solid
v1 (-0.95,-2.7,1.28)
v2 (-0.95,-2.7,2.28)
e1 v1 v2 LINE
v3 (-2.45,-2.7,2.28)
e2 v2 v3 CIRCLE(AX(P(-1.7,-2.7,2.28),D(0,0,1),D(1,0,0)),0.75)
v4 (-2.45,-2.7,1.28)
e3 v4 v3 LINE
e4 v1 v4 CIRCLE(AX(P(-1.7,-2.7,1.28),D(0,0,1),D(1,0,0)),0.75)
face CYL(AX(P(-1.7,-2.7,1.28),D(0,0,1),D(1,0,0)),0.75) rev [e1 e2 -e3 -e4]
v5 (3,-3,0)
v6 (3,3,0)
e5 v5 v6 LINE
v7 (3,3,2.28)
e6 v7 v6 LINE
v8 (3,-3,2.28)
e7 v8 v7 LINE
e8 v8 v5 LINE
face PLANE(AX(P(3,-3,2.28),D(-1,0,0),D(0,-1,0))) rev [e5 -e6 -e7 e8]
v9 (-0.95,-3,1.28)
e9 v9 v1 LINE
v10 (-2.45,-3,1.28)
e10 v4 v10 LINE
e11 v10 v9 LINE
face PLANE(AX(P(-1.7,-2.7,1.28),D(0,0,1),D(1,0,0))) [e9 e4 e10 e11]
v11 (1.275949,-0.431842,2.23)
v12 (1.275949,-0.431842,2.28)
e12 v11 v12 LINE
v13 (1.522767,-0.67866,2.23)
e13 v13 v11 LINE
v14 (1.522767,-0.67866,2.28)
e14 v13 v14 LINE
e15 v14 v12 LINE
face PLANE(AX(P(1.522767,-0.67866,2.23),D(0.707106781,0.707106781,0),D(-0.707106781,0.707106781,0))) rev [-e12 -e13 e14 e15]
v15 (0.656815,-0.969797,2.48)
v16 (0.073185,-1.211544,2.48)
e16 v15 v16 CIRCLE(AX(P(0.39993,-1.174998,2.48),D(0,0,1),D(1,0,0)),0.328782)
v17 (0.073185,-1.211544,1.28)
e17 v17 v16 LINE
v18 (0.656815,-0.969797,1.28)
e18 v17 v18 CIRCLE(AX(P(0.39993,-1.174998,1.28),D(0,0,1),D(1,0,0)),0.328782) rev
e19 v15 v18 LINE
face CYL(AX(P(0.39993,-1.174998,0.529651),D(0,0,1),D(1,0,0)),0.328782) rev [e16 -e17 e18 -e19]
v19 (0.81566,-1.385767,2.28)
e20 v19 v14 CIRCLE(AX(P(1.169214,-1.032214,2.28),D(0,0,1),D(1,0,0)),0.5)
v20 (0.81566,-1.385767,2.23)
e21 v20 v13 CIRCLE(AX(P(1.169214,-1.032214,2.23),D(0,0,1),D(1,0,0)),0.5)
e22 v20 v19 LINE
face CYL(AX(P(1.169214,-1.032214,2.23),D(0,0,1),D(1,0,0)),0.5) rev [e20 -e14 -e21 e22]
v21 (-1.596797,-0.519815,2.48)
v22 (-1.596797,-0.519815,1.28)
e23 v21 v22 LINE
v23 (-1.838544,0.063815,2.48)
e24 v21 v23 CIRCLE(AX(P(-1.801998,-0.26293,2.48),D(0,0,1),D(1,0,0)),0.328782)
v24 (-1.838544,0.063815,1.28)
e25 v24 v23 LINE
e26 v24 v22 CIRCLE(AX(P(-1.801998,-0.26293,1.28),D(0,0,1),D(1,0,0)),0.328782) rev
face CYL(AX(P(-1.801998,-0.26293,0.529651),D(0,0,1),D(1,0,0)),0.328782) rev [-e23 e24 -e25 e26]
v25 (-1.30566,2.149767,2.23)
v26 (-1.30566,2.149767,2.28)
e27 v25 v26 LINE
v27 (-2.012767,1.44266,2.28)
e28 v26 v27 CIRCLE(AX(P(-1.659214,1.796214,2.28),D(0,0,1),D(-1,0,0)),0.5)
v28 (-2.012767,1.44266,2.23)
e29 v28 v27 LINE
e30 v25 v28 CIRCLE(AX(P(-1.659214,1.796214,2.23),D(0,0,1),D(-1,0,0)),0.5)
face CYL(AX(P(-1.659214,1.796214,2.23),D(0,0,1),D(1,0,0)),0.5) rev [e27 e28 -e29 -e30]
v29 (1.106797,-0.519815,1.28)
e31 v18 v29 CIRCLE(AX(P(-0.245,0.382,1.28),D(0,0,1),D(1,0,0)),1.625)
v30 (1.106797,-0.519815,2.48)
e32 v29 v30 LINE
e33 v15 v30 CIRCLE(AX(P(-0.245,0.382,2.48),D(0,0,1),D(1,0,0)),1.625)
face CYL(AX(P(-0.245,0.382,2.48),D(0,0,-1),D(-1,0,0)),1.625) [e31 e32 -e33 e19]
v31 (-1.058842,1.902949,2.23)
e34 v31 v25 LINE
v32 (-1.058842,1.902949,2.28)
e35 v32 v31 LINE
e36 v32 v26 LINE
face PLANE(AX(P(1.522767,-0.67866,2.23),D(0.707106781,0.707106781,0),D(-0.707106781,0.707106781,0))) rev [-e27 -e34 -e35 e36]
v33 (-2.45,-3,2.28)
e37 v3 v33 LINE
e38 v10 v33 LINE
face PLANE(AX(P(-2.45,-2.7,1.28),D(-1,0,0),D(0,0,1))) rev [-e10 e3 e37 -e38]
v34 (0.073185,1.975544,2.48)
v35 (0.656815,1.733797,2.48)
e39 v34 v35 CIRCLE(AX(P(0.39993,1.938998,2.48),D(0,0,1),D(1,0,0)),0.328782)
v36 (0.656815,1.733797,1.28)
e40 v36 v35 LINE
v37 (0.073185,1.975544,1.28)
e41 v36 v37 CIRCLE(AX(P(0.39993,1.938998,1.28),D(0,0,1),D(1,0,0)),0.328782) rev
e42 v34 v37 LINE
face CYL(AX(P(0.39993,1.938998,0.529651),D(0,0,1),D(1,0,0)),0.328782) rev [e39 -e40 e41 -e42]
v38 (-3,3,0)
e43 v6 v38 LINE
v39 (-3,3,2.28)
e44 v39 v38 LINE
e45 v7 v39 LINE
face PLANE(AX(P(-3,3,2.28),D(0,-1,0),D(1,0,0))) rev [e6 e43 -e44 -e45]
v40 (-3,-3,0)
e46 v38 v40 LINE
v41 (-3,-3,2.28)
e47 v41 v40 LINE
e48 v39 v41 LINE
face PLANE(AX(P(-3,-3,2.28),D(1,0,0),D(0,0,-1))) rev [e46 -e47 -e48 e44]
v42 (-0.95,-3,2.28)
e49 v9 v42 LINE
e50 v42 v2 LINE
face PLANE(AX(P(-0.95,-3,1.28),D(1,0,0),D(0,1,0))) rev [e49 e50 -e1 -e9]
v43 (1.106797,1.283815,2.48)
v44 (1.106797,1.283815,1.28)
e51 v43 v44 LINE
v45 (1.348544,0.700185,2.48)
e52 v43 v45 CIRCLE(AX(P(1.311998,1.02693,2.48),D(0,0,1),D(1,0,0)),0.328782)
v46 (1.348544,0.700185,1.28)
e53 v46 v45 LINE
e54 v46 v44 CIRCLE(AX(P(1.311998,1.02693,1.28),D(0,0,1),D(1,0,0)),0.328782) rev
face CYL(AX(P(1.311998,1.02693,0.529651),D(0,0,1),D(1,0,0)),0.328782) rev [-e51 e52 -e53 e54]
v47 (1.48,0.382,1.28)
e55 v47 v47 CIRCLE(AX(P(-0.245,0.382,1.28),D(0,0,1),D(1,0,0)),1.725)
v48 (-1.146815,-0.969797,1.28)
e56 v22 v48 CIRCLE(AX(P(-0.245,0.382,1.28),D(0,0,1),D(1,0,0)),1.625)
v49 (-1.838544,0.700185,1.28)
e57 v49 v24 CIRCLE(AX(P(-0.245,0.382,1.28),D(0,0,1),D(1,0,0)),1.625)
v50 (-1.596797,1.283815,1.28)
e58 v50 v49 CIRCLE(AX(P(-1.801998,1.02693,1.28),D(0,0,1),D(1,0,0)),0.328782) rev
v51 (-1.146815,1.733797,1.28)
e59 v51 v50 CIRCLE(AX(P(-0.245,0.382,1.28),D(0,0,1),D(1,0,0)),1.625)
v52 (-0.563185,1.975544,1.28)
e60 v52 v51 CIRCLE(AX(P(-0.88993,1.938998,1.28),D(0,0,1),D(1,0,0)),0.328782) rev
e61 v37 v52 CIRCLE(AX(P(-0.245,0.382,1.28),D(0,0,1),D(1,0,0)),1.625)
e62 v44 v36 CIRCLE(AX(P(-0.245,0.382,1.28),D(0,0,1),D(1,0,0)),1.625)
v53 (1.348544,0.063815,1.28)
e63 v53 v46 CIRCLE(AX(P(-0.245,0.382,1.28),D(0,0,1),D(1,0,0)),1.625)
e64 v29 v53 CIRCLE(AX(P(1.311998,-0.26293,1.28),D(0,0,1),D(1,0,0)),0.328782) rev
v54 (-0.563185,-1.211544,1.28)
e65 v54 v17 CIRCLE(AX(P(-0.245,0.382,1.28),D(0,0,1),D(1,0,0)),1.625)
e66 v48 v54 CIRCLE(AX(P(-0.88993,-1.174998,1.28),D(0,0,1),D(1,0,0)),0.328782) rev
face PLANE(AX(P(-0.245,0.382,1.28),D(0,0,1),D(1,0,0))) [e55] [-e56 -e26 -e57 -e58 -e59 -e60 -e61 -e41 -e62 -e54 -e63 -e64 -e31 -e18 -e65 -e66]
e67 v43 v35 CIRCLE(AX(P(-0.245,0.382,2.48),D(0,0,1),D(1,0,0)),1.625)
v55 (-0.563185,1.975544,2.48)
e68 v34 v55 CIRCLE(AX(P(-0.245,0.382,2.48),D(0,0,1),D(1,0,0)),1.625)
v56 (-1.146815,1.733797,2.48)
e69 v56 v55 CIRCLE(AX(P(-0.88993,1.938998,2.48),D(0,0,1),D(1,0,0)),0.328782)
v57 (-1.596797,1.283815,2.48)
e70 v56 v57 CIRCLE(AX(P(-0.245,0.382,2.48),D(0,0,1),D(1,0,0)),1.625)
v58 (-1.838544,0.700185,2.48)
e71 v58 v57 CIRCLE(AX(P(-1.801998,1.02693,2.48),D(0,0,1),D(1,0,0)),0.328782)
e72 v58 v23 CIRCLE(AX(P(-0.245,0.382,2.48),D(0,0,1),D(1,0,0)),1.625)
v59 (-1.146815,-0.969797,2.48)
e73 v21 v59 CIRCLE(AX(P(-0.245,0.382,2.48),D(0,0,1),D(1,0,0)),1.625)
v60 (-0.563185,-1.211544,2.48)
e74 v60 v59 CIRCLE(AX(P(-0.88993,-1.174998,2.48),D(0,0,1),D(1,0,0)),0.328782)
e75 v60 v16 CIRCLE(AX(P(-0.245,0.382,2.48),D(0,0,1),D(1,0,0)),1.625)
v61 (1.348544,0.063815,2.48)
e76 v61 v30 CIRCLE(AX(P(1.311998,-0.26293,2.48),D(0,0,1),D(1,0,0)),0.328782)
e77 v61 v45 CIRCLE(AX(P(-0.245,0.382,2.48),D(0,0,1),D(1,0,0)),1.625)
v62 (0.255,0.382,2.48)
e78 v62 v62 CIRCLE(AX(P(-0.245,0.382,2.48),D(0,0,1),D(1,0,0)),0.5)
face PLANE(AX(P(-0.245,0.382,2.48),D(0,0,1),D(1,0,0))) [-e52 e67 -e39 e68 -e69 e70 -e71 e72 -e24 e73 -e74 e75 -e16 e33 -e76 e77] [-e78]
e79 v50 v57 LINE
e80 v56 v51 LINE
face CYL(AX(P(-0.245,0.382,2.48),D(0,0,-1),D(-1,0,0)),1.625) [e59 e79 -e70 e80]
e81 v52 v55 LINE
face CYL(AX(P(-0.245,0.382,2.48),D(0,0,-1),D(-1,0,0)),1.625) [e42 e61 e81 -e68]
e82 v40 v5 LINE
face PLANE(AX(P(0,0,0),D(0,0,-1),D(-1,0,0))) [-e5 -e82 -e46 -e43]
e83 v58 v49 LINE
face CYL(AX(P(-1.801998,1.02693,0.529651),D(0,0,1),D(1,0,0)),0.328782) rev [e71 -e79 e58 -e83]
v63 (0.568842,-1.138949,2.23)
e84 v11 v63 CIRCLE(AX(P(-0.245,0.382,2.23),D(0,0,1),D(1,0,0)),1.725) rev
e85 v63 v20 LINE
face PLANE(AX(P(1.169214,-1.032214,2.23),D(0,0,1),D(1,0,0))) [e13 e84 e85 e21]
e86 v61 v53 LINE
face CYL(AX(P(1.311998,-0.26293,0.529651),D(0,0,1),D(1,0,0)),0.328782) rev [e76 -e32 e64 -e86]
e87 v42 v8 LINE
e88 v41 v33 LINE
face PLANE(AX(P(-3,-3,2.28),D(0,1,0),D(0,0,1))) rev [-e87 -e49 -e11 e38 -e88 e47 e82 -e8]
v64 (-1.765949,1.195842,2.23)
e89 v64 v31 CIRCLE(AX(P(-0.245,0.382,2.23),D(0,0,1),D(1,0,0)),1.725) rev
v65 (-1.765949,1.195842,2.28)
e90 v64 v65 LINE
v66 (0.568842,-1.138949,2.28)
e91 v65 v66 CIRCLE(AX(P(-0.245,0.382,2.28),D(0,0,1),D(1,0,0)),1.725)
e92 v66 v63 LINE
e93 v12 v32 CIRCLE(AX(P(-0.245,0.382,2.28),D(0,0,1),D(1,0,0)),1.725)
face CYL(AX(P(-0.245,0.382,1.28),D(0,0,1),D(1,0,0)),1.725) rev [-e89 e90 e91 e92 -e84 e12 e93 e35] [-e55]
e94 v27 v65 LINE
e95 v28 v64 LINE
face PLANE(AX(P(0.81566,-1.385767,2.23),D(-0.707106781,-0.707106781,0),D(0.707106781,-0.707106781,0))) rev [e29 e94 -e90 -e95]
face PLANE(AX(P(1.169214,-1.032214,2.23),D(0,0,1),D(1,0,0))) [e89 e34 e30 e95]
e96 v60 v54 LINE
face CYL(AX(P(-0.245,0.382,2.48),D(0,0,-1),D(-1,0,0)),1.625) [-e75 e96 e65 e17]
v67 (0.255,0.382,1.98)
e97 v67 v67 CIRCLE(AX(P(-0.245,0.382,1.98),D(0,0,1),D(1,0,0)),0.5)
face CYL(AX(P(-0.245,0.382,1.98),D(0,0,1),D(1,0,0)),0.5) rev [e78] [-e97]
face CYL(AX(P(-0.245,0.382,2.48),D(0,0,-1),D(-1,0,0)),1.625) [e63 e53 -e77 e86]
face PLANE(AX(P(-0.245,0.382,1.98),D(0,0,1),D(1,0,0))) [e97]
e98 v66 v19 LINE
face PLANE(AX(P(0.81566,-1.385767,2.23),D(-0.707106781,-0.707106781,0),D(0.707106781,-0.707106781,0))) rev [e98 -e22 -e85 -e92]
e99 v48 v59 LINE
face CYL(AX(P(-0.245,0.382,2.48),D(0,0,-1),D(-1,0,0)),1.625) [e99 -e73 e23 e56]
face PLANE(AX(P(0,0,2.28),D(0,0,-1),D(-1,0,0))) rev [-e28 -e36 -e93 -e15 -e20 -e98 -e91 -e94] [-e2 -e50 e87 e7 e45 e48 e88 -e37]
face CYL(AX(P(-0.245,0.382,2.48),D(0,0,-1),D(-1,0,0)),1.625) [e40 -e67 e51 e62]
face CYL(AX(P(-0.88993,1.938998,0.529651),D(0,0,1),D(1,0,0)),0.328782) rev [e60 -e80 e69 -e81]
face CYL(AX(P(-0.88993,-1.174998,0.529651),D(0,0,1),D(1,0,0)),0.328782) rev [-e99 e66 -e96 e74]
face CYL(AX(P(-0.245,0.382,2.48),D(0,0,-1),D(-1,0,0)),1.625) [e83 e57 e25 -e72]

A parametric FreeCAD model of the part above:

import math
import FreeCAD as App
import Part
import Sketcher

V = App.Vector
Q = App.Units.Quantity

doc = App.newDocument("Part")
body = doc.addObject("PartDesign::Body", "Body")

sketch1 = doc.addObject("Sketcher::SketchObject", "Sketch")
body.addObject(sketch1)
sketch1.AttachmentSupport = (doc.XY_Plane, [""])
sketch1.MapMode = "FlatFace"
sketch1.addGeometry(Part.LineSegment(V(-3, 3, 0), V(-3, -3, 0)), False)
sketch1.addGeometry(Part.LineSegment(V(-3, -3, 0), V(3, -3, 0)), False)
sketch1.addGeometry(Part.LineSegment(V(3, -3, 0), V(3, 3, 0)), False)
sketch1.addGeometry(Part.LineSegment(V(3, 3, 0), V(-3, 3, 0)), False)
sketch1.addConstraint(Sketcher.Constraint("Coincident", 0, 2, 1, 1))
sketch1.addConstraint(Sketcher.Constraint("Coincident", 1, 2, 2, 1))
sketch1.addConstraint(Sketcher.Constraint("Coincident", 2, 2, 3, 1))
sketch1.addConstraint(Sketcher.Constraint("Coincident", 3, 2, 0, 1))
sketch1.addConstraint(Sketcher.Constraint("Vertical", 0))
sketch1.addConstraint(Sketcher.Constraint("Horizontal", 1))
sketch1.addConstraint(Sketcher.Constraint("Vertical", 2))
sketch1.addConstraint(Sketcher.Constraint("Horizontal", 3))
sketch1.addConstraint(Sketcher.Constraint("Symmetric", 0, 2, 2, 2, -1, 1))
sketch1.addConstraint(Sketcher.Constraint("Equal", 3, 0))
sketch1.addConstraint(Sketcher.Constraint("DistanceX", 1, 1, 1, 2, 6.0))
pad1 = doc.addObject("PartDesign::Pad", "Pad")
body.addObject(pad1)
pad1.Profile = sketch1
pad1.Length = 2.28

sketch2 = doc.addObject("Sketcher::SketchObject", "Sketch001")
body.addObject(sketch2)
sketch2.AttachmentSupport = (doc.XY_Plane, [""])
sketch2.MapMode = "FlatFace"
sketch2.AttachmentOffset = App.Placement(V(0, 0, 2.28), App.Rotation())
sketch2.addGeometry(Part.Circle(V(-0.245, 0.382, 0), V(0, 0, 1), 1.725), False)
sketch2.addConstraint(Sketcher.Constraint("Diameter", 0, 3.45))
sketch2.addConstraint(Sketcher.Constraint("DistanceX", 0, 3, -1, 1, 0.245))
sketch2.addConstraint(Sketcher.Constraint("DistanceY", -1, 1, 0, 3, 0.382))
pocket1 = doc.addObject("PartDesign::Pocket", "Pocket")
body.addObject(pocket1)
pocket1.Profile = sketch2
pocket1.Length = 1

sketch3 = doc.addObject("Sketcher::SketchObject", "Sketch002")
body.addObject(sketch3)
sketch3.AttachmentSupport = (doc.XY_Plane, [""])
sketch3.MapMode = "FlatFace"
sketch3.AttachmentOffset = App.Placement(V(0, 0, 2.28), App.Rotation())
sketch3.addGeometry(Part.LineSegment(V(-2.012767, 1.44266, 0), V(0.81566, -1.385767, 0)), False)
sketch3.addGeometry(Part.ArcOfCircle(Part.Circle(V(1.169214, -1.032214, 0), V(0, 0, 1), 0.5), math.radians(-135), math.radians(45)), False)
sketch3.addGeometry(Part.LineSegment(V(1.522767, -0.67866, 0), V(-1.30566, 2.149767, 0)), False)
sketch3.addGeometry(Part.ArcOfCircle(Part.Circle(V(-1.659214, 1.796214, 0), V(0, 0, 1), 0.5), math.radians(45), math.radians(225)), False)
sketch3.addConstraint(Sketcher.Constraint("Tangent", 0, 2, 1, 1))
sketch3.addConstraint(Sketcher.Constraint("Tangent", 1, 2, 2, 1))
sketch3.addConstraint(Sketcher.Constraint("Tangent", 2, 2, 3, 1))
sketch3.addConstraint(Sketcher.Constraint("Tangent", 3, 2, 0, 1))
sketch3.addConstraint(Sketcher.Constraint("Equal", 1, 3))
sketch3.addConstraint(Sketcher.Constraint("Radius", 1, 0.5))
sketch3.addConstraint(Sketcher.Constraint("Angle", 0, Q("-45 deg")))
sketch3.addConstraint(Sketcher.Constraint("Distance", 0, 4.0))
sketch3.addConstraint(Sketcher.Constraint("DistanceX", -1, 1, 0, 2, 0.81566))
sketch3.addConstraint(Sketcher.Constraint("DistanceY", 1, 2, -1, 1, 0.67866))
pocket2 = doc.addObject("PartDesign::Pocket", "Pocket001")
body.addObject(pocket2)
pocket2.Profile = sketch3
pocket2.Length = 0.05

sketch4 = doc.addObject("Sketcher::SketchObject", "Sketch003")
body.addObject(sketch4)
sketch4.AttachmentSupport = (doc.XY_Plane, [""])
sketch4.MapMode = "FlatFace"
sketch4.AttachmentOffset = App.Placement(V(0, 0, 2.28), App.Rotation())
sketch4.addGeometry(Part.LineSegment(V(-2.45, -2.7, 0), V(-2.45, -3, 0)), False)
sketch4.addGeometry(Part.LineSegment(V(-2.45, -3, 0), V(-0.95, -3, 0)), False)
sketch4.addGeometry(Part.LineSegment(V(-0.95, -3, 0), V(-0.95, -2.7, 0)), False)
sketch4.addGeometry(Part.ArcOfCircle(Part.Circle(V(-1.7, -2.7, 0), V(0, 0, 1), 0.75), math.radians(0), math.radians(180)), False)
sketch4.addConstraint(Sketcher.Constraint("Coincident", 0, 2, 1, 1))
sketch4.addConstraint(Sketcher.Constraint("Coincident", 1, 2, 2, 1))
sketch4.addConstraint(Sketcher.Constraint("Tangent", 2, 2, 3, 1))
sketch4.addConstraint(Sketcher.Constraint("Tangent", 3, 2, 0, 1))
sketch4.addConstraint(Sketcher.Constraint("Vertical", 0))
sketch4.addConstraint(Sketcher.Constraint("Horizontal", 1))
sketch4.addConstraint(Sketcher.Constraint("Vertical", 2))
sketch4.addConstraint(Sketcher.Constraint("Radius", 3, 0.75))
sketch4.addConstraint(Sketcher.Constraint("DistanceY", 0, 2, 0, 1, 0.3))
sketch4.addConstraint(Sketcher.Constraint("DistanceY", 0, 2, -1, 1, 3.0))
sketch4.addConstraint(Sketcher.Constraint("DistanceX", 3, 3, -1, 1, 1.7))
pocket3 = doc.addObject("PartDesign::Pocket", "Pocket002")
body.addObject(pocket3)
pocket3.Profile = sketch4
pocket3.Length = 1

sketch5 = doc.addObject("Sketcher::SketchObject", "Sketch004")
body.addObject(sketch5)
sketch5.AttachmentSupport = (doc.XY_Plane, [""])
sketch5.MapMode = "FlatFace"
sketch5.AttachmentOffset = App.Placement(V(0, 0, 1.28), App.Rotation())
sketch5.addGeometry(Part.Circle(V(-0.245, 0.382, 0), V(0, 0, 1), 1.625), False)
sketch5.addConstraint(Sketcher.Constraint("Diameter", 0, 3.25))
sketch5.addConstraint(Sketcher.Constraint("DistanceX", 0, 3, -1, 1, 0.245))
sketch5.addConstraint(Sketcher.Constraint("DistanceY", -1, 1, 0, 3, 0.382))
pad2 = doc.addObject("PartDesign::Pad", "Pad001")
body.addObject(pad2)
pad2.Profile = sketch5
pad2.Length = 1.2

sketch6 = doc.addObject("Sketcher::SketchObject", "Sketch005")
body.addObject(sketch6)
sketch6.AttachmentSupport = (doc.XY_Plane, [""])
sketch6.MapMode = "FlatFace"
sketch6.AttachmentOffset = App.Placement(V(0, 0, 2.48), App.Rotation())
sketch6.addGeometry(Part.ArcOfCircle(Part.Circle(V(-0.245, 0.382, 0), V(0, 0, 1), 1.685282), math.radians(-168.695655), math.radians(-146.304345)), False)
sketch6.addGeometry(Part.ArcOfCircle(Part.Circle(V(-1.801998, -0.26293, 0), V(0, 0, 1), 0.328782), math.radians(-61.902173), math.radians(106.902173)), False)
sketch6.addGeometry(Part.ArcOfCircle(Part.Circle(V(0.39993, 1.938998, 0), V(0, 0, 1), 0.328782), math.radians(163.097827), math.radians(331.902173)), False)
sketch6.addGeometry(Part.ArcOfCircle(Part.Circle(V(-0.245, 0.382, 0), V(0, 0, 1), 1.685282), math.radians(56.304345), math.radians(78.695655)), False)
sketch6.addGeometry(Part.ArcOfCircle(Part.Circle(V(1.311998, 1.02693, 0), V(0, 0, 1), 0.328782), math.radians(118.097827), math.radians(286.902173)), False)
sketch6.addGeometry(Part.ArcOfCircle(Part.Circle(V(-0.245, 0.382, 0), V(0, 0, 1), 1.685282), math.radians(11.304345), math.radians(33.695655)), False)
sketch6.addGeometry(Part.ArcOfCircle(Part.Circle(V(1.311998, -0.26293, 0), V(0, 0, 1), 0.328782), math.radians(73.097827), math.radians(241.902173)), False)
sketch6.addGeometry(Part.ArcOfCircle(Part.Circle(V(-0.245, 0.382, 0), V(0, 0, 1), 1.685282), math.radians(-33.695655), math.radians(-11.304345)), False)
sketch6.addGeometry(Part.ArcOfCircle(Part.Circle(V(0.39993, -1.174998, 0), V(0, 0, 1), 0.328782), math.radians(28.097827), math.radians(196.902173)), False)
sketch6.addGeometry(Part.ArcOfCircle(Part.Circle(V(-0.245, 0.382, 0), V(0, 0, 1), 1.685282), math.radians(-78.695655), math.radians(-56.304345)), False)
sketch6.addGeometry(Part.ArcOfCircle(Part.Circle(V(-0.88993, -1.174998, 0), V(0, 0, 1), 0.328782), math.radians(-16.902173), math.radians(151.902173)), False)
sketch6.addGeometry(Part.ArcOfCircle(Part.Circle(V(-0.245, 0.382, 0), V(0, 0, 1), 1.685282), math.radians(-123.695655), math.radians(-101.304345)), False)
sketch6.addGeometry(Part.ArcOfCircle(Part.Circle(V(-1.801998, 1.02693, 0), V(0, 0, 1), 0.328782), math.radians(-106.902173), math.radians(61.902173)), False)
sketch6.addGeometry(Part.ArcOfCircle(Part.Circle(V(-0.245, 0.382, 0), V(0, 0, 1), 1.685282), math.radians(146.304345), math.radians(168.695655)), False)
sketch6.addGeometry(Part.ArcOfCircle(Part.Circle(V(-0.88993, 1.938998, 0), V(0, 0, 1), 0.328782), math.radians(-151.902173), math.radians(16.902173)), False)
sketch6.addGeometry(Part.ArcOfCircle(Part.Circle(V(-0.245, 0.382, 0), V(0, 0, 1), 1.685282), math.radians(101.304345), math.radians(123.695655)), False)
sketch6.addConstraint(Sketcher.Constraint("Coincident", 0, 1, 1, 2))
sketch6.addConstraint(Sketcher.Constraint("Coincident", 1, 1, 0, 2))
sketch6.addConstraint(Sketcher.Constraint("Coincident", 2, 1, 3, 2))
sketch6.addConstraint(Sketcher.Constraint("Coincident", 3, 1, 2, 2))
sketch6.addConstraint(Sketcher.Constraint("Coincident", 4, 1, 5, 2))
sketch6.addConstraint(Sketcher.Constraint("Coincident", 5, 1, 4, 2))
sketch6.addConstraint(Sketcher.Constraint("Coincident", 6, 1, 7, 2))
sketch6.addConstraint(Sketcher.Constraint("Coincident", 7, 1, 6, 2))
sketch6.addConstraint(Sketcher.Constraint("Coincident", 8, 1, 9, 2))
sketch6.addConstraint(Sketcher.Constraint("Coincident", 9, 1, 8, 2))
sketch6.addConstraint(Sketcher.Constraint("Coincident", 10, 1, 11, 2))
sketch6.addConstraint(Sketcher.Constraint("Coincident", 11, 1, 10, 2))
sketch6.addConstraint(Sketcher.Constraint("Coincident", 12, 1, 13, 2))
sketch6.addConstraint(Sketcher.Constraint("Coincident", 13, 1, 12, 2))
sketch6.addConstraint(Sketcher.Constraint("Coincident", 14, 1, 15, 2))
sketch6.addConstraint(Sketcher.Constraint("Coincident", 15, 1, 14, 2))
sketch6.addConstraint(Sketcher.Constraint("Coincident", 3, 3, 0, 3))
sketch6.addConstraint(Sketcher.Constraint("Coincident", 5, 3, 0, 3))
sketch6.addConstraint(Sketcher.Constraint("Coincident", 7, 3, 0, 3))
sketch6.addConstraint(Sketcher.Constraint("Coincident", 9, 3, 0, 3))
sketch6.addConstraint(Sketcher.Constraint("Coincident", 11, 3, 0, 3))
sketch6.addConstraint(Sketcher.Constraint("Coincident", 13, 3, 0, 3))
sketch6.addConstraint(Sketcher.Constraint("Coincident", 15, 3, 0, 3))
sketch6.addConstraint(Sketcher.Constraint("Equal", 1, 2))
sketch6.addConstraint(Sketcher.Constraint("Equal", 0, 3))
sketch6.addConstraint(Sketcher.Constraint("Equal", 2, 4))
sketch6.addConstraint(Sketcher.Constraint("Equal", 3, 5))
sketch6.addConstraint(Sketcher.Constraint("Equal", 4, 6))
sketch6.addConstraint(Sketcher.Constraint("Equal", 5, 7))
sketch6.addConstraint(Sketcher.Constraint("Equal", 6, 8))
sketch6.addConstraint(Sketcher.Constraint("Equal", 7, 9))
sketch6.addConstraint(Sketcher.Constraint("Equal", 8, 10))
sketch6.addConstraint(Sketcher.Constraint("Equal", 9, 11))
sketch6.addConstraint(Sketcher.Constraint("Equal", 10, 12))
sketch6.addConstraint(Sketcher.Constraint("Equal", 11, 13))
sketch6.addConstraint(Sketcher.Constraint("Equal", 12, 14))
sketch6.addConstraint(Sketcher.Constraint("Equal", 13, 15))
sketch6.addConstraint(Sketcher.Constraint("Horizontal", 1, 3, 6, 3))
sketch6.addConstraint(Sketcher.Constraint("Horizontal", 8, 3, 10, 3))
sketch6.addConstraint(Sketcher.Constraint("Horizontal", 4, 3, 12, 3))
sketch6.addConstraint(Sketcher.Constraint("Horizontal", 2, 3, 14, 3))
sketch6.addConstraint(Sketcher.Constraint("Horizontal", 0, 1, 6, 1))
sketch6.addConstraint(Sketcher.Constraint("Horizontal", 9, 1, 10, 1))
sketch6.addConstraint(Sketcher.Constraint("Horizontal", 5, 1, 12, 1))
sketch6.addConstraint(Sketcher.Constraint("Horizontal", 3, 1, 14, 1))
sketch6.addConstraint(Sketcher.Constraint("Vertical", 4, 3, 6, 3))
sketch6.addConstraint(Sketcher.Constraint("Vertical", 2, 3, 8, 3))
sketch6.addConstraint(Sketcher.Constraint("Vertical", 5, 1, 6, 1))
sketch6.addConstraint(Sketcher.Constraint("Vertical", 3, 1, 8, 1))
sketch6.addConstraint(Sketcher.Constraint("DistanceX", 0, 3, -1, 1, 0.245))
sketch6.addConstraint(Sketcher.Constraint("DistanceY", -1, 1, 0, 3, 0.382))
sketch6.addConstraint(Sketcher.Constraint("Radius", 0, 1.685282))
sketch6.addConstraint(Sketcher.Constraint("Radius", 1, 0.328782))
sketch6.addConstraint(Sketcher.Constraint("DistanceX", 2, 1, 4, 1, 1.071798))
sketch6.addConstraint(Sketcher.Constraint("DistanceY", 5, 1, 3, 1, 1.071798))
sketch6.addConstraint(Sketcher.Constraint("DistanceY", 6, 1, 5, 1, 0.6607))
sketch6.addConstraint(Sketcher.Constraint("DistanceX", 10, 1, 9, 1, 0.6607))
pocket4 = doc.addObject("PartDesign::Pocket", "Pocket003")
body.addObject(pocket4)
pocket4.Profile = sketch6
pocket4.Length = 1.2

sketch7 = doc.addObject("Sketcher::SketchObject", "Sketch006")
body.addObject(sketch7)
sketch7.AttachmentSupport = (doc.XY_Plane, [""])
sketch7.MapMode = "FlatFace"
sketch7.AttachmentOffset = App.Placement(V(0, 0, 2.48), App.Rotation())
sketch7.addGeometry(Part.Circle(V(-0.245, 0.382, 0), V(0, 0, 1), 0.5), False)
sketch7.addConstraint(Sketcher.Constraint("Diameter", 0, 1.0))
sketch7.addConstraint(Sketcher.Constraint("DistanceX", 0, 3, -1, 1, 0.245))
sketch7.addConstraint(Sketcher.Constraint("DistanceY", -1, 1, 0, 3, 0.382))
pocket5 = doc.addObject("PartDesign::Pocket", "Pocket004")
body.addObject(pocket5)
pocket5.Profile = sketch7
pocket5.Length = 0.5

doc.recompute()
